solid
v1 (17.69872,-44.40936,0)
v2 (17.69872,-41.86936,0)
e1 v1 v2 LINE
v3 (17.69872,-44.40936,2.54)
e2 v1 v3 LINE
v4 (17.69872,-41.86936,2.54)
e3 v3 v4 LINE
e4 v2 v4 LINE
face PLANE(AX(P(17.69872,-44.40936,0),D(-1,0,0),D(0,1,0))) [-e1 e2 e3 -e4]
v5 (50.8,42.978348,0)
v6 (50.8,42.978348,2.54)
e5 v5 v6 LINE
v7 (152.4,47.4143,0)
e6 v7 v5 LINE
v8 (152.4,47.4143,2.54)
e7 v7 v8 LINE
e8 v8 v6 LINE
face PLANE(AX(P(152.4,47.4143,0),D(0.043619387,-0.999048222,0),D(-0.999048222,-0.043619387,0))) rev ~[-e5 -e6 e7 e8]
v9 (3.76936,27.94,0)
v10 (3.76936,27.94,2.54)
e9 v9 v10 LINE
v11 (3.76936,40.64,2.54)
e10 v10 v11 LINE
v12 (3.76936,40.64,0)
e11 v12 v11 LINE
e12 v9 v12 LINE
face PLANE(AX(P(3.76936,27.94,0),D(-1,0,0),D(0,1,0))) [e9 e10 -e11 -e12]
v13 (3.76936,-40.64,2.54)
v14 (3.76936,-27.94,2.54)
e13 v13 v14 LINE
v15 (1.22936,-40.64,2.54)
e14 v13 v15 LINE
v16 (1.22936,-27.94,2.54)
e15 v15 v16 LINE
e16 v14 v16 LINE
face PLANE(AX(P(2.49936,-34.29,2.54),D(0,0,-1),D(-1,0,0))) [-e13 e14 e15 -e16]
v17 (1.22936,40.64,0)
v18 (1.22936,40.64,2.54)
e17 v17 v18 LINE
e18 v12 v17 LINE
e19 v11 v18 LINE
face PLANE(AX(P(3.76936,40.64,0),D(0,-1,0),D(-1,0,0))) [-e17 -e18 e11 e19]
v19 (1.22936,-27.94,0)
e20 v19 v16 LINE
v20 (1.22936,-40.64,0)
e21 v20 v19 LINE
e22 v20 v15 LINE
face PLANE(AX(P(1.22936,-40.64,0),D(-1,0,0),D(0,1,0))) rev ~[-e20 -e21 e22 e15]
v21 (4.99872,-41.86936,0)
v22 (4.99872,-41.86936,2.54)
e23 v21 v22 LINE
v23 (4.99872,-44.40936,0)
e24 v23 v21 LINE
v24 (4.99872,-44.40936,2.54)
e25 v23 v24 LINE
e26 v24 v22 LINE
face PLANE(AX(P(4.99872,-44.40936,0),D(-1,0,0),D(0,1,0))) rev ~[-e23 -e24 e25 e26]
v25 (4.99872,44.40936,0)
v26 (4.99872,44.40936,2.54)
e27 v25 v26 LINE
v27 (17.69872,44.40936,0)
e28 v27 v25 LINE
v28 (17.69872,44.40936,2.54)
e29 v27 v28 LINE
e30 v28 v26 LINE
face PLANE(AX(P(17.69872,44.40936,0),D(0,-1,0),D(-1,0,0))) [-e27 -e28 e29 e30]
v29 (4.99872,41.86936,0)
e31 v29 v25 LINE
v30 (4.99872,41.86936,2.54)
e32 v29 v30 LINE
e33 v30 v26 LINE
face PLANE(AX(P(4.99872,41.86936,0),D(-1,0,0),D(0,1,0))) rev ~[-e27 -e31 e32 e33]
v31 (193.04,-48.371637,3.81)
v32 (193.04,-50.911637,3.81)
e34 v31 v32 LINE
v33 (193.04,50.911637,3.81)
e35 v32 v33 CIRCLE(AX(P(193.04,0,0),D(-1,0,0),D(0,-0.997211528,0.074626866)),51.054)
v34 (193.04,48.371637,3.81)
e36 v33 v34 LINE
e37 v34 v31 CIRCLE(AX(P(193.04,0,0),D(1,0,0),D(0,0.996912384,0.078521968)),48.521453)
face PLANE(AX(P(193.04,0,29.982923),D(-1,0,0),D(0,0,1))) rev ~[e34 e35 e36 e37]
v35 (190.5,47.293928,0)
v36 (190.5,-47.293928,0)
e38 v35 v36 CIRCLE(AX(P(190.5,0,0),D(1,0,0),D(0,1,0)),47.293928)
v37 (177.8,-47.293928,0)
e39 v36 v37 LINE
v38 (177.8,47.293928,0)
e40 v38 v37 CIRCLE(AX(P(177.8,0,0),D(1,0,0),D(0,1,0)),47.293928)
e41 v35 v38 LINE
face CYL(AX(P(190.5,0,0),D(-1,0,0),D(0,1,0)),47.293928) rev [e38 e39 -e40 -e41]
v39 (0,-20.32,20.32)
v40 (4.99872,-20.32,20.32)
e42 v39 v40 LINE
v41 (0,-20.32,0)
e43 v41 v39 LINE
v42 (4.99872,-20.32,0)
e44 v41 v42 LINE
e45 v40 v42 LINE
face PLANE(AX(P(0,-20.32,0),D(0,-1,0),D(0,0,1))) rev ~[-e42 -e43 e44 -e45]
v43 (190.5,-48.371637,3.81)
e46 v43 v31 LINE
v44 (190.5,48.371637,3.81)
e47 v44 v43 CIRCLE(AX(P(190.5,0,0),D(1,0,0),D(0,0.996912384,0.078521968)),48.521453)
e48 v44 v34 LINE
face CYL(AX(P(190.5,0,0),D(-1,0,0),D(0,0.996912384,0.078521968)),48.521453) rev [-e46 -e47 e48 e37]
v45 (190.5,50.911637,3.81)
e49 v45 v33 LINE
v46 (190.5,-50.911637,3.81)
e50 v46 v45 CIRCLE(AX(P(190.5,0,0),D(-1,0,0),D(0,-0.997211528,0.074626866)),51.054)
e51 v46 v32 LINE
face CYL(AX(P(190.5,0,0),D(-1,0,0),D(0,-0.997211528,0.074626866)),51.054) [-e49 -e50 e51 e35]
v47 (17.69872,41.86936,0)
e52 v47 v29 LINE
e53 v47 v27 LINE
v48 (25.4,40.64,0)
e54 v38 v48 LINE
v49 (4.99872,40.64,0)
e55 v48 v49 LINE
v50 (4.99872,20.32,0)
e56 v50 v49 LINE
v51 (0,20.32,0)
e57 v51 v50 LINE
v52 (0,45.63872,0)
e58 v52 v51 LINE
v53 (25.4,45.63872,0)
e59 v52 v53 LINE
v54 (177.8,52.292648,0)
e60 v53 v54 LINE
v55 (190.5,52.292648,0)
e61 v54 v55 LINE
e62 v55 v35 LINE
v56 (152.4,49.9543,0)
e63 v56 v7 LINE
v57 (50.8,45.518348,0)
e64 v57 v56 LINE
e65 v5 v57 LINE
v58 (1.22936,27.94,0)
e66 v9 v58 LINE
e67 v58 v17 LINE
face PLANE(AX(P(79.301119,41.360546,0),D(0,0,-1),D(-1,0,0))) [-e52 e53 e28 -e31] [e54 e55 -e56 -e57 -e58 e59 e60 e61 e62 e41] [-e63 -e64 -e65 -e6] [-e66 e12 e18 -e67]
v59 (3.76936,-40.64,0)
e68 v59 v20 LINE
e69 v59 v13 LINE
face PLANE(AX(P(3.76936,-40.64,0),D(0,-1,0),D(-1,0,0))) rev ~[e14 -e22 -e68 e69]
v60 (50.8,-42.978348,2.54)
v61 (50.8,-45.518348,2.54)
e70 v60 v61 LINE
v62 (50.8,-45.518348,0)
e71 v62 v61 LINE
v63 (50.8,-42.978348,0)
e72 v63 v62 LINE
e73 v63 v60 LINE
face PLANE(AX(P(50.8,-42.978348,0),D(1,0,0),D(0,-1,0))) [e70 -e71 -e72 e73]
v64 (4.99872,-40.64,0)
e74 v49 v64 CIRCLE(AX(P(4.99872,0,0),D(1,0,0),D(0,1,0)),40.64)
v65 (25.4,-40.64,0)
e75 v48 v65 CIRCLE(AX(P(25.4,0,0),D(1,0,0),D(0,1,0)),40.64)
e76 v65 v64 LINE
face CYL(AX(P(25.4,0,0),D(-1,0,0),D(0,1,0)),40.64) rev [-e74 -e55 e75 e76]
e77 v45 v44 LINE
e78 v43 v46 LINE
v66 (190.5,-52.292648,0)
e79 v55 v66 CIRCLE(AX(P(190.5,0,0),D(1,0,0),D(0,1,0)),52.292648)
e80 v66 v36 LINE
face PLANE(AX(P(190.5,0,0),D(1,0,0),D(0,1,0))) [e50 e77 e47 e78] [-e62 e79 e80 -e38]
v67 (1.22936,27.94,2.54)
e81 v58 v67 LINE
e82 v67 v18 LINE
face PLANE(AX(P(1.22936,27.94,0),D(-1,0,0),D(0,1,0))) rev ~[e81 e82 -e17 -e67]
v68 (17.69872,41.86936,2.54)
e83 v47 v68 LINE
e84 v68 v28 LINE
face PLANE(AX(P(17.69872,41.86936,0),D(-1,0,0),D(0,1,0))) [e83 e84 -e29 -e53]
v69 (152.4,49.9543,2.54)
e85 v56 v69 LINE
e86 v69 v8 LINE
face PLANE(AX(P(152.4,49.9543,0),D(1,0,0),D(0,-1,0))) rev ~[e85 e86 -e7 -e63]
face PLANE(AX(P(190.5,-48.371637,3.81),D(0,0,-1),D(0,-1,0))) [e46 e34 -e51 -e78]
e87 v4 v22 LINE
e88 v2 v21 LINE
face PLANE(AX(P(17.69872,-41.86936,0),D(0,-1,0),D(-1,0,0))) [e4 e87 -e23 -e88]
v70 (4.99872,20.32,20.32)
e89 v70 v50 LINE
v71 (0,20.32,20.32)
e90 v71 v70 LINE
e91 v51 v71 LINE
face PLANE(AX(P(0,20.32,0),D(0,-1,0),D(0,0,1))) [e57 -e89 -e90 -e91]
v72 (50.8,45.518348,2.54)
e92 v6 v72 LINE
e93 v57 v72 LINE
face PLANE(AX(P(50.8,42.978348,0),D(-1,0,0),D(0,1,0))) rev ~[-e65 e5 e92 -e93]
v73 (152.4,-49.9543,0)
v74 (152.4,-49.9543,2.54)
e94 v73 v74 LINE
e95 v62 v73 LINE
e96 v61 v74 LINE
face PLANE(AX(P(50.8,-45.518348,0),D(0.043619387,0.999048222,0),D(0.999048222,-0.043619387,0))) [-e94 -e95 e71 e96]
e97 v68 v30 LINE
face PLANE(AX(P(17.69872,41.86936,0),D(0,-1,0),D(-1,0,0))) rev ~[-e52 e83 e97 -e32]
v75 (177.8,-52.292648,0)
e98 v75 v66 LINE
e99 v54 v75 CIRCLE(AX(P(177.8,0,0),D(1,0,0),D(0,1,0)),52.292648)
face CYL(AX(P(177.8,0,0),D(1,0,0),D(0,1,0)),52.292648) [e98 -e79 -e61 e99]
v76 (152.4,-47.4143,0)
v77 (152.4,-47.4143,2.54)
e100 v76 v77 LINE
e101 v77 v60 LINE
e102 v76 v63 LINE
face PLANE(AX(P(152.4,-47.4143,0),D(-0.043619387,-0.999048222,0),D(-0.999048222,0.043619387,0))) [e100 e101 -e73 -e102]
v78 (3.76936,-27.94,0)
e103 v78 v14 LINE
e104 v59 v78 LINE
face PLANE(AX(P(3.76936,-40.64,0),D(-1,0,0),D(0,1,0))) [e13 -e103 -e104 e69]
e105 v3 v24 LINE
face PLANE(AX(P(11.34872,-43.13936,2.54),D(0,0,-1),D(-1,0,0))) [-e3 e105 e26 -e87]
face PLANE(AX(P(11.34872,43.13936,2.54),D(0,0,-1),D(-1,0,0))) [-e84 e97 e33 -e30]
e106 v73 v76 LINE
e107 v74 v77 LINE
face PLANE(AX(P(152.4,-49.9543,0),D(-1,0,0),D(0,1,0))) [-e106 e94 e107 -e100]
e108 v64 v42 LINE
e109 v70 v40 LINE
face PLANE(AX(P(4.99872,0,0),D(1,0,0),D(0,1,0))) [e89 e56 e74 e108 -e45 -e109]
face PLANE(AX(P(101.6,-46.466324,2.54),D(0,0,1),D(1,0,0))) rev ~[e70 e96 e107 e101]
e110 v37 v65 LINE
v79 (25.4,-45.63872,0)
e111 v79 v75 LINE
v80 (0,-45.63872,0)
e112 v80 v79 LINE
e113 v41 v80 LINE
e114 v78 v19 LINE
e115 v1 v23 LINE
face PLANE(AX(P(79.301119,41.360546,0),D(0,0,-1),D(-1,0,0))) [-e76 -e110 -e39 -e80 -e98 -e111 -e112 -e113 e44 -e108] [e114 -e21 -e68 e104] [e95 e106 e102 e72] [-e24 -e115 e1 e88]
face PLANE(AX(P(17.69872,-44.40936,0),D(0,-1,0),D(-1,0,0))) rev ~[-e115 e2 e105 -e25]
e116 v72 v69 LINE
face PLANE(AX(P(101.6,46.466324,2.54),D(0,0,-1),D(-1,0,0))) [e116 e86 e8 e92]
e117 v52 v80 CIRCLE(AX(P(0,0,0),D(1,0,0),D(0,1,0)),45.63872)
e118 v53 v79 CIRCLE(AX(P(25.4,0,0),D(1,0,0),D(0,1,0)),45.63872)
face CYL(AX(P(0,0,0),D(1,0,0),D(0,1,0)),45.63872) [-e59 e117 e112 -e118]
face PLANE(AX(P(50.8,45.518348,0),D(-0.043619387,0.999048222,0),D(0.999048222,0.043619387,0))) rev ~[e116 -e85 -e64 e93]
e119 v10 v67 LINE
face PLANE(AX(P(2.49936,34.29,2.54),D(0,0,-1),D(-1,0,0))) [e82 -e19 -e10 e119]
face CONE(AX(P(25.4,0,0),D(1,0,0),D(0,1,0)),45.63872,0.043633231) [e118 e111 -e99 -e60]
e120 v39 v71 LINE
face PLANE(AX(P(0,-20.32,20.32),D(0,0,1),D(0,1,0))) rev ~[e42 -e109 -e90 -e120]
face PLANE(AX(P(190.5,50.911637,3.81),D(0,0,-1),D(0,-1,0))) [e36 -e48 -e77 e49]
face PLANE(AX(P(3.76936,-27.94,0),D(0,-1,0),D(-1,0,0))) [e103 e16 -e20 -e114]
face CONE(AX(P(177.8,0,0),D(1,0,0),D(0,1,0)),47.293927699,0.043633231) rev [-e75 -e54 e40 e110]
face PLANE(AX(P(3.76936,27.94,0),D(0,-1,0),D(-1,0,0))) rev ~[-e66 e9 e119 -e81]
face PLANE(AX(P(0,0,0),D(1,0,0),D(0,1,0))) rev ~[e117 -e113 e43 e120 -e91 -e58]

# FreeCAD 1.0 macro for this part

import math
import FreeCAD as App
import Part
import Sketcher

V = App.Vector
Q = App.Units.Quantity

doc = App.newDocument("Part")
body = doc.addObject("PartDesign::Body", "Body")

# Sketch on XY plane
sketch1 = body.newObject("Sketcher::SketchObject", "Sketch")
sketch1.AttachmentSupport = (doc.getObject("XY_Plane"), [""])
sketch1.MapMode = "FlatFace"
sketch1.addGeometry(Part.LineSegment(V(0, 45.6, 0), V(0, 0, 0)), False)
sketch1.addGeometry(Part.LineSegment(V(0, 0, 0), V(5, 0, 0)), False)
sketch1.addGeometry(Part.LineSegment(V(5, 0, 0), V(5, 40.6, 0)), False)
sketch1.addGeometry(Part.LineSegment(V(5, 40.6, 0), V(25.4, 40.6, 0)), False)
sketch1.addGeometry(Part.LineSegment(V(25.4, 40.6, 0), V(177.8, 47.3, 0)), False)
sketch1.addGeometry(Part.LineSegment(V(177.8, 47.3, 0), V(190.5, 47.3, 0)), False)
sketch1.addGeometry(Part.LineSegment(V(190.5, 47.3, 0), V(190.5, 52.3, 0)), False)
sketch1.addGeometry(Part.LineSegment(V(190.5, 52.3, 0), V(177.8, 52.3, 0)), False)
sketch1.addGeometry(Part.LineSegment(V(177.8, 52.3, 0), V(25.4, 45.6, 0)), False)
sketch1.addGeometry(Part.LineSegment(V(25.4, 45.6, 0), V(0, 45.6, 0)), False)
sketch1.addConstraint(Sketcher.Constraint("Coincident", 0, 2, 1, 1))
sketch1.addConstraint(Sketcher.Constraint("Coincident", 1, 2, 2, 1))
sketch1.addConstraint(Sketcher.Constraint("Coincident", 2, 2, 3, 1))
sketch1.addConstraint(Sketcher.Constraint("Coincident", 3, 2, 4, 1))
sketch1.addConstraint(Sketcher.Constraint("Coincident", 4, 2, 5, 1))
sketch1.addConstraint(Sketcher.Constraint("Coincident", 5, 2, 6, 1))
sketch1.addConstraint(Sketcher.Constraint("Coincident", 6, 2, 7, 1))
sketch1.addConstraint(Sketcher.Constraint("Coincident", 7, 2, 8, 1))
sketch1.addConstraint(Sketcher.Constraint("Coincident", 8, 2, 9, 1))
sketch1.addConstraint(Sketcher.Constraint("Coincident", 9, 2, 0, 1))
sketch1.addConstraint(Sketcher.Constraint("Vertical", 0))
sketch1.addConstraint(Sketcher.Constraint("Horizontal", 1))
sketch1.addConstraint(Sketcher.Constraint("Vertical", 2))
sketch1.addConstraint(Sketcher.Constraint("Horizontal", 3))
sketch1.addConstraint(Sketcher.Constraint("Horizontal", 5))
sketch1.addConstraint(Sketcher.Constraint("Vertical", 6))
sketch1.addConstraint(Sketcher.Constraint("Horizontal", 7))
sketch1.addConstraint(Sketcher.Constraint("Horizontal", 9))
sketch1.addConstraint(Sketcher.Constraint("Coincident", 0, 2, -1, 1))
sketch1.addConstraint(Sketcher.Constraint("Parallel", 4, 8))
sketch1.addConstraint(Sketcher.Constraint("Vertical", 4, 2, 7, 2))
sketch1.addConstraint(Sketcher.Constraint("Vertical", 3, 2, 8, 2))
sketch1.addConstraint(Sketcher.Constraint("Equal", 1, 6))
sketch1.addConstraint(Sketcher.Constraint("DistanceX", 9, 2, 9, 1, Q("1 in")))
sketch1.addConstraint(Sketcher.Constraint("DistanceX", 5, 1, 5, 2, Q("0.5 in")))
sketch1.addConstraint(Sketcher.Constraint("DistanceY", 2, 1, 2, 2, Q("1.6 in")))
sketch1.addConstraint(Sketcher.Constraint("DistanceX", -1, 1, 4, 2, Q("7 in")))
sketch1.addConstraint(Sketcher.Constraint("Angle", 4, Q("2.5 deg")))
sketch1.addConstraint(Sketcher.Constraint("DistanceX", 1, 1, 1, 2, Q("0.1968 in")))
revolution = body.newObject("PartDesign::Revolution", "Revolution")
revolution.Profile = sketch1
revolution.ReferenceAxis = (sketch1, ["H_Axis"])
revolution.Angle = 180

# Sketch on YZ plane
sketch2 = body.newObject("Sketcher::SketchObject", "Sketch001")
sketch2.AttachmentSupport = (doc.getObject("YZ_Plane"), [""])
sketch2.MapMode = "FlatFace"
sketch2.addGeometry(Part.LineSegment(V(20, 0, 0), V(-20, 0, 0)), False)
sketch2.addGeometry(Part.LineSegment(V(-20, 0, 0), V(-20, 20, 0)), False)
sketch2.addGeometry(Part.LineSegment(V(-20, 20, 0), V(20, 20, 0)), False)
sketch2.addGeometry(Part.LineSegment(V(20, 20, 0), V(20, 0, 0)), False)
sketch2.addConstraint(Sketcher.Constraint("Coincident", 0, 2, 1, 1))
sketch2.addConstraint(Sketcher.Constraint("Coincident", 1, 2, 2, 1))
sketch2.addConstraint(Sketcher.Constraint("Coincident", 2, 2, 3, 1))
sketch2.addConstraint(Sketcher.Constraint("Coincident", 3, 2, 0, 1))
sketch2.addConstraint(Sketcher.Constraint("Horizontal", 0))
sketch2.addConstraint(Sketcher.Constraint("Vertical", 1))
sketch2.addConstraint(Sketcher.Constraint("Horizontal", 2))
sketch2.addConstraint(Sketcher.Constraint("Vertical", 3))
sketch2.addConstraint(Sketcher.Constraint("Symmetric", 0, 2, 3, 2, -1, 1))
sketch2.addConstraint(Sketcher.Constraint("DistanceX", 0, 2, 0, 1, Q("1.6 in")))
sketch2.addConstraint(Sketcher.Constraint("DistanceY", 1, 1, 1, 2, Q("0.8 in")))
pocket1 = body.newObject("PartDesign::Pocket", "Pocket")
pocket1.Profile = sketch2
pocket1.Length = Q("1.26 in")
pocket1.Reversed = True

# Sketch on YZ plane
sketch3 = body.newObject("Sketcher::SketchObject", "Sketch002")
sketch3.AttachmentSupport = (doc.getObject("YZ_Plane"), [""])
sketch3.MapMode = "FlatFace"
sketch3.AttachmentOffset = App.Placement(V(0, 0, 7.5 * 25.4), App.Rotation())
sketch3.addGeometry(Part.LineSegment(V(48.4, 3.8, 0), V(50.9, 3.8, 0)), False)
sketch3.addGeometry(Part.ArcOfCircle(Part.Circle(V(0, 0, 0), V(0, 0, 1), 51.1), math.radians(4), math.radians(176)), False)
sketch3.addGeometry(Part.LineSegment(V(-50.9, 3.8, 0), V(-48.4, 3.8, 0)), False)
sketch3.addGeometry(Part.ArcOfCircle(Part.Circle(V(0, 0, 0), V(0, 0, 1), 48.5), math.radians(5), math.radians(175)), False)
sketch3.addConstraint(Sketcher.Constraint("Coincident", 0, 2, 1, 1))
sketch3.addConstraint(Sketcher.Constraint("Coincident", 1, 2, 2, 1))
sketch3.addConstraint(Sketcher.Constraint("Coincident", 2, 2, 3, 2))
sketch3.addConstraint(Sketcher.Constraint("Coincident", 3, 1, 0, 1))
sketch3.addConstraint(Sketcher.Constraint("Horizontal", 0))
sketch3.addConstraint(Sketcher.Constraint("Horizontal", 2))
sketch3.addConstraint(Sketcher.Constraint("Coincident", 1, 3, -1, 1))
sketch3.addConstraint(Sketcher.Constraint("Coincident", 3, 3, -1, 1))
sketch3.addConstraint(Sketcher.Constraint("Horizontal", 0, 2, 1, 2))
sketch3.addConstraint(Sketcher.Constraint("Radius", 1, Q("2.01 in")))
sketch3.addConstraint(Sketcher.Constraint("DistanceX", 0, 1, 0, 2, Q("0.1 in")))
sketch3.addConstraint(Sketcher.Constraint("DistanceY", -1, 1, 0, 2, Q("0.15 in")))
pad1 = body.newObject("PartDesign::Pad", "Pad")
pad1.Profile = sketch3
pad1.Length = Q("0.1 in")

# Sketch on XY plane
sketch4 = body.newObject("Sketcher::SketchObject", "Sketch003")
sketch4.AttachmentSupport = (doc.getObject("XY_Plane"), [""])
sketch4.MapMode = "FlatFace"
sketch4.addGeometry(Part.LineSegment(V(3.8, 40.6, 0), V(3.8, 27.9, 0)), False)
sketch4.addGeometry(Part.LineSegment(V(3.8, 27.9, 0), V(1.2, 27.9, 0)), False)
sketch4.addGeometry(Part.LineSegment(V(1.2, 27.9, 0), V(1.2, 40.6, 0)), False)
sketch4.addGeometry(Part.LineSegment(V(1.2, 40.6, 0), V(3.8, 40.6, 0)), False)
sketch4.addGeometry(Part.LineSegment(V(152.4, 50, 0), V(152.4, 47.4, 0)), False)
sketch4.addGeometry(Part.LineSegment(V(152.4, 47.4, 0), V(50.8, 43, 0)), False)
sketch4.addGeometry(Part.LineSegment(V(50.8, 43, 0), V(50.8, 45.5, 0)), False)
sketch4.addGeometry(Part.LineSegment(V(50.8, 45.5, 0), V(152.4, 50, 0)), False)
sketch4.addGeometry(Part.LineSegment(V(17.7, 44.4, 0), V(17.7, 41.9, 0)), False)
sketch4.addGeometry(Part.LineSegment(V(17.7, 41.9, 0), V(5, 41.9, 0)), False)
sketch4.addGeometry(Part.LineSegment(V(5, 41.9, 0), V(5, 44.4, 0)), False)
sketch4.addGeometry(Part.LineSegment(V(5, 44.4, 0), V(17.7, 44.4, 0)), False)
sketch4.addGeometry(Part.LineSegment(V(50.8, -45.5, 0), V(50.8, -43, 0)), False)
sketch4.addGeometry(Part.LineSegment(V(50.8, -43, 0), V(152.4, -47.4, 0)), False)
sketch4.addGeometry(Part.LineSegment(V(152.4, -47.4, 0), V(152.4, -50, 0)), False)
sketch4.addGeometry(Part.LineSegment(V(152.4, -50, 0), V(50.8, -45.5, 0)), False)
sketch4.addGeometry(Part.LineSegment(V(17.7, -41.9, 0), V(17.7, -44.4, 0)), False)
sketch4.addGeometry(Part.LineSegment(V(17.7, -44.4, 0), V(5, -44.4, 0)), False)
sketch4.addGeometry(Part.LineSegment(V(5, -44.4, 0), V(5, -41.9, 0)), False)
sketch4.addGeometry(Part.LineSegment(V(5, -41.9, 0), V(17.7, -41.9, 0)), False)
sketch4.addGeometry(Part.LineSegment(V(3.8, -27.9, 0), V(3.8, -40.6, 0)), False)
sketch4.addGeometry(Part.LineSegment(V(3.8, -40.6, 0), V(1.2, -40.6, 0)), False)
sketch4.addGeometry(Part.LineSegment(V(1.2, -40.6, 0), V(1.2, -27.9, 0)), False)
sketch4.addGeometry(Part.LineSegment(V(1.2, -27.9, 0), V(3.8, -27.9, 0)), False)
sketch4.addConstraint(Sketcher.Constraint("Coincident", 0, 2, 1, 1))
sketch4.addConstraint(Sketcher.Constraint("Coincident", 1, 2, 2, 1))
sketch4.addConstraint(Sketcher.Constraint("Coincident", 2, 2, 3, 1))
sketch4.addConstraint(Sketcher.Constraint("Coincident", 3, 2, 0, 1))
sketch4.addConstraint(Sketcher.Constraint("Coincident", 4, 2, 5, 1))
sketch4.addConstraint(Sketcher.Constraint("Coincident", 5, 2, 6, 1))
sketch4.addConstraint(Sketcher.Constraint("Coincident", 6, 2, 7, 1))
sketch4.addConstraint(Sketcher.Constraint("Coincident", 7, 2, 4, 1))
sketch4.addConstraint(Sketcher.Constraint("Coincident", 8, 2, 9, 1))
sketch4.addConstraint(Sketcher.Constraint("Coincident", 9, 2, 10, 1))
sketch4.addConstraint(Sketcher.Constraint("Coincident", 10, 2, 11, 1))
sketch4.addConstraint(Sketcher.Constraint("Coincident", 11, 2, 8, 1))
sketch4.addConstraint(Sketcher.Constraint("Coincident", 12, 2, 13, 1))
sketch4.addConstraint(Sketcher.Constraint("Coincident", 13, 2, 14, 1))
sketch4.addConstraint(Sketcher.Constraint("Coincident", 14, 2, 15, 1))
sketch4.addConstraint(Sketcher.Constraint("Coincident", 15, 2, 12, 1))
sketch4.addConstraint(Sketcher.Constraint("Coincident", 16, 2, 17, 1))
sketch4.addConstraint(Sketcher.Constraint("Coincident", 17, 2, 18, 1))
sketch4.addConstraint(Sketcher.Constraint("Coincident", 18, 2, 19, 1))
sketch4.addConstraint(Sketcher.Constraint("Coincident", 19, 2, 16, 1))
sketch4.addConstraint(Sketcher.Constraint("Coincident", 20, 2, 21, 1))
sketch4.addConstraint(Sketcher.Constraint("Coincident", 21, 2, 22, 1))
sketch4.addConstraint(Sketcher.Constraint("Coincident", 22, 2, 23, 1))
sketch4.addConstraint(Sketcher.Constraint("Coincident", 23, 2, 20, 1))
sketch4.addConstraint(Sketcher.Constraint("Vertical", 0))
sketch4.addConstraint(Sketcher.Constraint("Horizontal", 1))
sketch4.addConstraint(Sketcher.Constraint("Vertical", 2))
sketch4.addConstraint(Sketcher.Constraint("Horizontal", 3))
sketch4.addConstraint(Sketcher.Constraint("Vertical", 4))
sketch4.addConstraint(Sketcher.Constraint("Vertical", 6))
sketch4.addConstraint(Sketcher.Constraint("Vertical", 8))
sketch4.addConstraint(Sketcher.Constraint("Horizontal", 9))
sketch4.addConstraint(Sketcher.Constraint("Vertical", 10))
sketch4.addConstraint(Sketcher.Constraint("Horizontal", 11))
sketch4.addConstraint(Sketcher.Constraint("Vertical", 12))
sketch4.addConstraint(Sketcher.Constraint("Vertical", 14))
sketch4.addConstraint(Sketcher.Constraint("Vertical", 16))
sketch4.addConstraint(Sketcher.Constraint("Horizontal", 17))
sketch4.addConstraint(Sketcher.Constraint("Vertical", 18))
sketch4.addConstraint(Sketcher.Constraint("Horizontal", 19))
sketch4.addConstraint(Sketcher.Constraint("Vertical", 20))
sketch4.addConstraint(Sketcher.Constraint("Horizontal", 21))
sketch4.addConstraint(Sketcher.Constraint("Vertical", 22))
sketch4.addConstraint(Sketcher.Constraint("Horizontal", 23))
sketch4.addConstraint(Sketcher.Constraint("Symmetric", 5, 2, 12, 2, -1))
sketch4.addConstraint(Sketcher.Constraint("Symmetric", 4, 2, 13, 2, -1))
sketch4.addConstraint(Sketcher.Constraint("Symmetric", 11, 2, 16, 2, -1))
sketch4.addConstraint(Sketcher.Constraint("Symmetric", 9, 2, 18, 2, -1))
sketch4.addConstraint(Sketcher.Constraint("Symmetric", 3, 2, 20, 2, -1))
sketch4.addConstraint(Sketcher.Constraint("Symmetric", 1, 2, 22, 2, -1))
sketch4.addConstraint(Sketcher.Constraint("Parallel", 5, 7))
sketch4.addConstraint(Sketcher.Constraint("Parallel", 13, 15))
sketch4.addConstraint(Sketcher.Constraint("Equal", 19, 0))
sketch4.addConstraint(Sketcher.Constraint("Equal", 23, 4))
sketch4.addConstraint(Sketcher.Constraint("Equal", 6, 8))
sketch4.addConstraint(Sketcher.Constraint("Equal", 10, 12))
sketch4.addConstraint(Sketcher.Constraint("DistanceX", 1, 2, 1, 1, Q("0.1 in")))
sketch4.addConstraint(Sketcher.Constraint("DistanceX", 9, 2, 9, 1, Q("0.5 in")))
sketch4.addConstraint(Sketcher.Constraint("DistanceX", -1, 1, 4, 2, Q("6 in")))
sketch4.addConstraint(Sketcher.Constraint("DistanceX", -1, 1, 5, 2, Q("2 in")))
sketch4.addConstraint(Sketcher.Constraint("DistanceY", -1, 1, 0, 2, Q("1.1 in")))
sketch4.addConstraint(Sketcher.Constraint("Angle", 5, Q("-177.5 deg")))
sketch4.addConstraint(Sketcher.Constraint("DistanceX", -1, 1, 0, 2, Q("0.1484 in")))
sketch4.addConstraint(Sketcher.Constraint("DistanceX", -1, 1, 8, 2, Q("0.6968 in")))
sketch4.addConstraint(Sketcher.Constraint("DistanceY", -1, 1, 8, 2, Q("1.6484 in")))
sketch4.addConstraint(Sketcher.Constraint("DistanceY", -1, 1, 4, 2, Q("47.4143 mm")))
pocket2 = body.newObject("PartDesign::Pocket", "Pocket001")
pocket2.Profile = sketch4
pocket2.Length = Q("0.1 in")
pocket2.Reversed = True

doc.recompute()
